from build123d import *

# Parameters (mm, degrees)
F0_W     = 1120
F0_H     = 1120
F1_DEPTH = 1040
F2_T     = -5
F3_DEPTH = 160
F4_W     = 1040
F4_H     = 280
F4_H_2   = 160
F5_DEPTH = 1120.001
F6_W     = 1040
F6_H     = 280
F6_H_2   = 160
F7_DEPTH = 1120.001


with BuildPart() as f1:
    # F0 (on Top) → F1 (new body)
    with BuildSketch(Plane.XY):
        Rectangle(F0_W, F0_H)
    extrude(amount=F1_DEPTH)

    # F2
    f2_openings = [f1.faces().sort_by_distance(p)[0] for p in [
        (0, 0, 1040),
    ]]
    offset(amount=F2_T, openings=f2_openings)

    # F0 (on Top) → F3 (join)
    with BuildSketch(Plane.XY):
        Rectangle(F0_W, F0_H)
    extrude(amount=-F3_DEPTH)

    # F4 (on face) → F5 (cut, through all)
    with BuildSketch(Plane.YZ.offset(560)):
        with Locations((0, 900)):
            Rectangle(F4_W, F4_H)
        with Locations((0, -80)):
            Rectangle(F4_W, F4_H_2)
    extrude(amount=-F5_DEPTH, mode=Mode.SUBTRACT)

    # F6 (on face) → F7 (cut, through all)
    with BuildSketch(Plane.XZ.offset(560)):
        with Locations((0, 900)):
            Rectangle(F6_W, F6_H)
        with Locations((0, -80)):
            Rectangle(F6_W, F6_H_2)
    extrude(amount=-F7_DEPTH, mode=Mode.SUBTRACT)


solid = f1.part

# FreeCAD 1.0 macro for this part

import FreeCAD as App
import Part
import Sketcher
Q = App.Units.Quantity


def faces_at(feature, points):
    """Names of the faces that lie closest to the given points."""
    faces = feature.Shape.Faces
    near = lambda p: min(range(len(faces)), key=lambda i: faces[i].distToShape(Part.Vertex(*p))[0])
    return sorted({f"Face{near(p) + 1}" for p in points})

doc = App.newDocument("Part")
body = doc.addObject("PartDesign::Body", "Body")

# Sketch on XY plane
sketch1 = doc.addObject("Sketcher::SketchObject", "Sketch")
body.addObject(sketch1)
sketch1.AttachmentSupport = (doc.XY_Plane, [""])
sketch1.MapMode = "FlatFace"
sketch1.addGeometry(Part.LineSegment(App.Vector(-560, 560, 0), App.Vector(-560, -560, 0)), False)
sketch1.addGeometry(Part.LineSegment(App.Vector(-560, -560, 0), App.Vector(560, -560, 0)), False)
sketch1.addGeometry(Part.LineSegment(App.Vector(560, -560, 0), App.Vector(560, 560, 0)), False)
sketch1.addGeometry(Part.LineSegment(App.Vector(560, 560, 0), App.Vector(-560, 560, 0)), False)
sketch1.addConstraint(Sketcher.Constraint("Coincident", 0, 2, 1, 1))
sketch1.addConstraint(Sketcher.Constraint("Coincident", 1, 2, 2, 1))
sketch1.addConstraint(Sketcher.Constraint("Coincident", 2, 2, 3, 1))
sketch1.addConstraint(Sketcher.Constraint("Coincident", 3, 2, 0, 1))
sketch1.addConstraint(Sketcher.Constraint("Vertical", 0))
sketch1.addConstraint(Sketcher.Constraint("Horizontal", 1))
sketch1.addConstraint(Sketcher.Constraint("Vertical", 2))
sketch1.addConstraint(Sketcher.Constraint("Horizontal", 3))
sketch1.addConstraint(Sketcher.Constraint("Symmetric", 0, 2, 2, 2, -1, 1))
sketch1.addConstraint(Sketcher.Constraint("Equal", 3, 0))
sketch1.addConstraint(Sketcher.Constraint("DistanceX", 1, 1, 1, 2, Q("1120 mm")))
pad1 = doc.addObject("PartDesign::Pad", "Pad")
body.addObject(pad1)
pad1.Profile = sketch1
pad1.Length = 1040
doc.recompute()

thickness = doc.addObject("PartDesign::Thickness", "Thickness")
body.addObject(thickness)
thickness.Base = (pad1, faces_at(pad1, [(0, 0, 1040)]))
thickness.Value = 5
thickness.Reversed = True
thickness.Join = "Arc"

# Sketch on XY plane
sketch2 = doc.addObject("Sketcher::SketchObject", "Sketch001")
body.addObject(sketch2)
sketch2.AttachmentSupport = (doc.XY_Plane, [""])
sketch2.MapMode = "FlatFace"
sketch2.addGeometry(Part.LineSegment(App.Vector(-560, 560, 0), App.Vector(-560, -560, 0)), False)
sketch2.addGeometry(Part.LineSegment(App.Vector(-560, -560, 0), App.Vector(560, -560, 0)), False)
sketch2.addGeometry(Part.LineSegment(App.Vector(560, -560, 0), App.Vector(560, 560, 0)), False)
sketch2.addGeometry(Part.LineSegment(App.Vector(560, 560, 0), App.Vector(-560, 560, 0)), False)
sketch2.addConstraint(Sketcher.Constraint("Coincident", 0, 2, 1, 1))
sketch2.addConstraint(Sketcher.Constraint("Coincident", 1, 2, 2, 1))
sketch2.addConstraint(Sketcher.Constraint("Coincident", 2, 2, 3, 1))
sketch2.addConstraint(Sketcher.Constraint("Coincident", 3, 2, 0, 1))
sketch2.addConstraint(Sketcher.Constraint("Vertical", 0))
sketch2.addConstraint(Sketcher.Constraint("Horizontal", 1))
sketch2.addConstraint(Sketcher.Constraint("Vertical", 2))
sketch2.addConstraint(Sketcher.Constraint("Horizontal", 3))
sketch2.addConstraint(Sketcher.Constraint("Symmetric", 0, 2, 2, 2, -1, 1))
sketch2.addConstraint(Sketcher.Constraint("Equal", 3, 0))
sketch2.addConstraint(Sketcher.Constraint("DistanceX", 1, 1, 1, 2, Q("1120 mm")))
pad2 = doc.addObject("PartDesign::Pad", "Pad001")
body.addObject(pad2)
pad2.Profile = sketch2
pad2.Length = 160
pad2.Reversed = True

# Sketch on YZ plane
sketch3 = doc.addObject("Sketcher::SketchObject", "Sketch002")
body.addObject(sketch3)
sketch3.AttachmentSupport = (doc.YZ_Plane, [""])
sketch3.MapMode = "FlatFace"
sketch3.AttachmentOffset = App.Placement(App.Vector(0, 0, 560), App.Rotation())
sketch3.addGeometry(Part.LineSegment(App.Vector(-520, 1040, 0), App.Vector(-520, 760, 0)), False)
sketch3.addGeometry(Part.LineSegment(App.Vector(-520, 760, 0), App.Vector(520, 760, 0)), False)
sketch3.addGeometry(Part.LineSegment(App.Vector(520, 760, 0), App.Vector(520, 1040, 0)), False)
sketch3.addGeometry(Part.LineSegment(App.Vector(520, 1040, 0), App.Vector(-520, 1040, 0)), False)
sketch3.addGeometry(Part.LineSegment(App.Vector(-520, 0, 0), App.Vector(-520, -160, 0)), False)
sketch3.addGeometry(Part.LineSegment(App.Vector(-520, -160, 0), App.Vector(520, -160, 0)), False)
sketch3.addGeometry(Part.LineSegment(App.Vector(520, -160, 0), App.Vector(520, 0, 0)), False)
sketch3.addGeometry(Part.LineSegment(App.Vector(520, 0, 0), App.Vector(-520, 0, 0)), False)
sketch3.addConstraint(Sketcher.Constraint("Coincident", 0, 2, 1, 1))
sketch3.addConstraint(Sketcher.Constraint("Coincident", 1, 2, 2, 1))
sketch3.addConstraint(Sketcher.Constraint("Coincident", 2, 2, 3, 1))
sketch3.addConstraint(Sketcher.Constraint("Coincident", 3, 2, 0, 1))
sketch3.addConstraint(Sketcher.Constraint("Coincident", 4, 2, 5, 1))
sketch3.addConstraint(Sketcher.Constraint("Coincident", 5, 2, 6, 1))
sketch3.addConstraint(Sketcher.Constraint("Coincident", 6, 2, 7, 1))
sketch3.addConstraint(Sketcher.Constraint("Coincident", 7, 2, 4, 1))
sketch3.addConstraint(Sketcher.Constraint("Vertical", 0))
sketch3.addConstraint(Sketcher.Constraint("Horizontal", 1))
sketch3.addConstraint(Sketcher.Constraint("Vertical", 2))
sketch3.addConstraint(Sketcher.Constraint("Horizontal", 3))
sketch3.addConstraint(Sketcher.Constraint("Vertical", 4))
sketch3.addConstraint(Sketcher.Constraint("Horizontal", 5))
sketch3.addConstraint(Sketcher.Constraint("Vertical", 6))
sketch3.addConstraint(Sketcher.Constraint("Horizontal", 7))
sketch3.addConstraint(Sketcher.Constraint("Symmetric", 6, 2, 7, 2, -1, 1))
sketch3.addConstraint(Sketcher.Constraint("Vertical", 3, 2, 4, 2))
sketch3.addConstraint(Sketcher.Constraint("Vertical", 2, 2, 5, 2))
sketch3.addConstraint(Sketcher.Constraint("DistanceX", 1, 1, 1, 2, Q("1040 mm")))
sketch3.addConstraint(Sketcher.Constraint("DistanceY", 0, 2, 0, 1, Q("280 mm")))
sketch3.addConstraint(Sketcher.Constraint("DistanceY", 4, 2, 4, 1, Q("160 mm")))
sketch3.addConstraint(Sketcher.Constraint("DistanceY", -1, 1, 0, 2, Q("760 mm")))
pocket1 = doc.addObject("PartDesign::Pocket", "Pocket")
body.addObject(pocket1)
pocket1.Profile = sketch3
pocket1.Type = "ThroughAll"

# Sketch on XZ plane
sketch4 = doc.addObject("Sketcher::SketchObject", "Sketch003")
body.addObject(sketch4)
sketch4.AttachmentSupport = (doc.XZ_Plane, [""])
sketch4.MapMode = "FlatFace"
sketch4.AttachmentOffset = App.Placement(App.Vector(0, 0, 560), App.Rotation())
sketch4.addGeometry(Part.LineSegment(App.Vector(-520, 1040, 0), App.Vector(-520, 760, 0)), False)
sketch4.addGeometry(Part.LineSegment(App.Vector(-520, 760, 0), App.Vector(520, 760, 0)), False)
sketch4.addGeometry(Part.LineSegment(App.Vector(520, 760, 0), App.Vector(520, 1040, 0)), False)
sketch4.addGeometry(Part.LineSegment(App.Vector(520, 1040, 0), App.Vector(-520, 1040, 0)), False)
sketch4.addGeometry(Part.LineSegment(App.Vector(-520, 0, 0), App.Vector(-520, -160, 0)), False)
sketch4.addGeometry(Part.LineSegment(App.Vector(-520, -160, 0), App.Vector(520, -160, 0)), False)
sketch4.addGeometry(Part.LineSegment(App.Vector(520, -160, 0), App.Vector(520, 0, 0)), False)
sketch4.addGeometry(Part.LineSegment(App.Vector(520, 0, 0), App.Vector(-520, 0, 0)), False)
sketch4.addConstraint(Sketcher.Constraint("Coincident", 0, 2, 1, 1))
sketch4.addConstraint(Sketcher.Constraint("Coincident", 1, 2, 2, 1))
sketch4.addConstraint(Sketcher.Constraint("Coincident", 2, 2, 3, 1))
sketch4.addConstraint(Sketcher.Constraint("Coincident", 3, 2, 0, 1))
sketch4.addConstraint(Sketcher.Constraint("Coincident", 4, 2, 5, 1))
sketch4.addConstraint(Sketcher.Constraint("Coincident", 5, 2, 6, 1))
sketch4.addConstraint(Sketcher.Constraint("Coincident", 6, 2, 7, 1))
sketch4.addConstraint(Sketcher.Constraint("Coincident", 7, 2, 4, 1))
sketch4.addConstraint(Sketcher.Constraint("Vertical", 0))
sketch4.addConstraint(Sketcher.Constraint("Horizontal", 1))
sketch4.addConstraint(Sketcher.Constraint("Vertical", 2))
sketch4.addConstraint(Sketcher.Constraint("Horizontal", 3))
sketch4.addConstraint(Sketcher.Constraint("Vertical", 4))
sketch4.addConstraint(Sketcher.Constraint("Horizontal", 5))
sketch4.addConstraint(Sketcher.Constraint("Vertical", 6))
sketch4.addConstraint(Sketcher.Constraint("Horizontal", 7))
sketch4.addConstraint(Sketcher.Constraint("Symmetric", 6, 2, 7, 2, -1, 1))
sketch4.addConstraint(Sketcher.Constraint("Vertical", 3, 2, 4, 2))
sketch4.addConstraint(Sketcher.Constraint("Vertical", 2, 2, 5, 2))
sketch4.addConstraint(Sketcher.Constraint("DistanceX", 1, 1, 1, 2, Q("1040 mm")))
sketch4.addConstraint(Sketcher.Constraint("DistanceY", 0, 2, 0, 1, Q("280 mm")))
sketch4.addConstraint(Sketcher.Constraint("DistanceY", 4, 2, 4, 1, Q("160 mm")))
sketch4.addConstraint(Sketcher.Constraint("DistanceY", -1, 1, 0, 2, Q("760 mm")))
pocket2 = doc.addObject("PartDesign::Pocket", "Pocket001")
body.addObject(pocket2)
pocket2.Profile = sketch4
pocket2.Type = "ThroughAll"

doc.recompute()
